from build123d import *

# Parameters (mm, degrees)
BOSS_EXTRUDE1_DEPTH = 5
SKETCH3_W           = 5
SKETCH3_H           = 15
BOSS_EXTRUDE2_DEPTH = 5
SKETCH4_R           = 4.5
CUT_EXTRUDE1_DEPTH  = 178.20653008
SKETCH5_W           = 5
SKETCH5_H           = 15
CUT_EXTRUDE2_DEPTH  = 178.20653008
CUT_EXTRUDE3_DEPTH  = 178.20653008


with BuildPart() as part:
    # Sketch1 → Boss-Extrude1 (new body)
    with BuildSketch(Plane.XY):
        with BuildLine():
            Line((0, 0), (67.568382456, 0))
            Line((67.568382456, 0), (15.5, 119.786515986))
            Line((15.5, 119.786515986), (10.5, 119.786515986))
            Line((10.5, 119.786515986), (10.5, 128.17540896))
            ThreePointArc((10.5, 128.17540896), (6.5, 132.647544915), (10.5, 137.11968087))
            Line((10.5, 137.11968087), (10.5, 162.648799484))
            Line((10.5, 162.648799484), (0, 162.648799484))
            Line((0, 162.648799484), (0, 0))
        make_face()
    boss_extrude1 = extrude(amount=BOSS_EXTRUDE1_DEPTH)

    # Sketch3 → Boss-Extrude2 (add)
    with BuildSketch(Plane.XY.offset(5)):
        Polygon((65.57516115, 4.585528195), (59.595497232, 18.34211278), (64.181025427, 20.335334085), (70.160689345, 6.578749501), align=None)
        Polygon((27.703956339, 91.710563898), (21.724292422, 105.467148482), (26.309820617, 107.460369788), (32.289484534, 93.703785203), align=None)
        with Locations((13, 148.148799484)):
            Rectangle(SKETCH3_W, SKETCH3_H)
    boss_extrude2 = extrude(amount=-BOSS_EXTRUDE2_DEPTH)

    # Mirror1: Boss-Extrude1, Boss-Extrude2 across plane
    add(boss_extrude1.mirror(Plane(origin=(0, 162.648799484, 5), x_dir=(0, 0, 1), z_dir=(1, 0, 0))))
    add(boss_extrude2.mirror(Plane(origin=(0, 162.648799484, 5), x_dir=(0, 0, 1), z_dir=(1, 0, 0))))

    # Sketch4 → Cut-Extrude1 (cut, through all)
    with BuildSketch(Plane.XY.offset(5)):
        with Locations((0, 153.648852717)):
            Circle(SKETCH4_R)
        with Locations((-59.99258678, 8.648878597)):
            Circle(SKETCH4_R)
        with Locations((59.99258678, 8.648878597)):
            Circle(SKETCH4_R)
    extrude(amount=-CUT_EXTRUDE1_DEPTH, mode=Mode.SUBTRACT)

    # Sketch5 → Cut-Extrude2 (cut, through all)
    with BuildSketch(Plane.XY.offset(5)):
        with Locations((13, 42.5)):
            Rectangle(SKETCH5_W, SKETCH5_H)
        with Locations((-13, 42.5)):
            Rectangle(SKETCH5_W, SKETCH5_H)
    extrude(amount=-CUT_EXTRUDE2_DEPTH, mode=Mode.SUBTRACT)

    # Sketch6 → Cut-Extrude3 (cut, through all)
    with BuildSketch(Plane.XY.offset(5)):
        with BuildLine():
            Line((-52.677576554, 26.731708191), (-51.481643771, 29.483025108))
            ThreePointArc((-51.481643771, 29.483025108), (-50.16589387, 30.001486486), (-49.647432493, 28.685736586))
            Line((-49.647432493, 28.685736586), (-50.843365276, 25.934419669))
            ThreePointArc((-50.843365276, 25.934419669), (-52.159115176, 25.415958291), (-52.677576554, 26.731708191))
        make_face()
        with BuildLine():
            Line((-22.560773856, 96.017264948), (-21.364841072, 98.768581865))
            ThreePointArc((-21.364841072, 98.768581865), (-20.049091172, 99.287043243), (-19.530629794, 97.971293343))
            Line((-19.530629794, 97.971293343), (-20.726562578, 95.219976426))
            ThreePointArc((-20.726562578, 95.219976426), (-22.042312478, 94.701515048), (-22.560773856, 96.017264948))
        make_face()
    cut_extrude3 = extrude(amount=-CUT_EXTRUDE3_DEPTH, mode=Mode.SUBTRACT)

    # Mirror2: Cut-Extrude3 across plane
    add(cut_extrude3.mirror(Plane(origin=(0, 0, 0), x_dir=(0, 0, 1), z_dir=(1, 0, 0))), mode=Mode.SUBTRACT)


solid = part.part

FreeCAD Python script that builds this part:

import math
import FreeCAD as App
import Part
import Sketcher
from FreeCAD import Vector
Q = App.Units.Quantity

doc = App.newDocument("Part")
body = doc.addObject("PartDesign::Body", "Body")

# Sketch on XY plane
sketch1 = body.newObject("Sketcher::SketchObject", "Sketch")
sketch1.AttachmentSupport = (doc.getObject("XY_Plane"), [""])
sketch1.MapMode = "FlatFace"
sketch1.addGeometry([
    Part.LineSegment(Vector(0, 0, 0), Vector(67.6, 0, 0)),  # 0
    Part.LineSegment(Vector(67.6, 0, 0), Vector(15.5, 119.8, 0)),  # 1
    Part.LineSegment(Vector(15.5, 119.8, 0), Vector(10.5, 119.8, 0)),  # 2
    Part.LineSegment(Vector(10.5, 119.8, 0), Vector(10.5, 128.2, 0)),  # 3
    Part.ArcOfCircle(Part.Circle(Vector(11, 132.6, 0), Vector(0, 0, 1), 4.5), math.radians(96), math.radians(264)),  # 4
    Part.LineSegment(Vector(10.5, 137.1, 0), Vector(10.5, 162.6, 0)),  # 5
    Part.LineSegment(Vector(10.5, 162.6, 0), Vector(0, 162.6, 0)),  # 6
    Part.LineSegment(Vector(0, 162.6, 0), Vector(0, 0, 0)),  # 7
], False)
sketch1.addConstraint([
    Sketcher.Constraint("Coincident", 0, 2, 1, 1),
    Sketcher.Constraint("Coincident", 1, 2, 2, 1),
    Sketcher.Constraint("Coincident", 2, 2, 3, 1),
    Sketcher.Constraint("Coincident", 3, 2, 4, 2),
    Sketcher.Constraint("Coincident", 4, 1, 5, 1),
    Sketcher.Constraint("Coincident", 5, 2, 6, 1),
    Sketcher.Constraint("Coincident", 6, 2, 7, 1),
    Sketcher.Constraint("Coincident", 7, 2, 0, 1),
    Sketcher.Constraint("Horizontal", 0),
    Sketcher.Constraint("Horizontal", 2),
    Sketcher.Constraint("Vertical", 3),
    Sketcher.Constraint("Vertical", 5),
    Sketcher.Constraint("Horizontal", 6),
    Sketcher.Constraint("Vertical", 7),
    Sketcher.Constraint("Coincident", 7, 2, -1, 1),
    Sketcher.Constraint("Vertical", 3, 2, 4, 1),
    Sketcher.Constraint("Radius", 4, Q("4.5 mm")),
    Sketcher.Constraint("DistanceX", 2, 2, 2, 1, Q("5 mm")),
    Sketcher.Constraint("DistanceX", 6, 2, 6, 1, Q("10.5 mm")),
    Sketcher.Constraint("DistanceX", -1, 1, 4, 3, Q("11 mm")),
    Sketcher.Constraint("DistanceY", 7, 2, 7, 1, Q("162.648799 mm")),
    Sketcher.Constraint("DistanceY", 5, 1, 5, 2, Q("25.529119 mm")),
    Sketcher.Constraint("Distance", 1, Q("130.613651 mm")),
    Sketcher.Constraint("DistanceX", 0, 1, 0, 2, Q("67.568382 mm")),
])
pad1 = body.newObject("PartDesign::Pad", "Pad")
pad1.Profile = sketch1
pad1.Length = 5

# Sketch on XY plane
sketch2 = body.newObject("Sketcher::SketchObject", "Sketch001")
sketch2.AttachmentSupport = (doc.getObject("XY_Plane"), [""])
sketch2.MapMode = "FlatFace"
sketch2.AttachmentOffset = App.Placement(Vector(0, 0, 5), App.Rotation())
sketch2.addGeometry([
    Part.LineSegment(Vector(59.6, 18.3, 0), Vector(65.6, 4.6, 0)),  # 0
    Part.LineSegment(Vector(65.6, 4.6, 0), Vector(70.2, 6.6, 0)),  # 1
    Part.LineSegment(Vector(70.2, 6.6, 0), Vector(64.2, 20.3, 0)),  # 2
    Part.LineSegment(Vector(64.2, 20.3, 0), Vector(59.6, 18.3, 0)),  # 3
    Part.LineSegment(Vector(21.7, 105.5, 0), Vector(27.7, 91.7, 0)),  # 4
    Part.LineSegment(Vector(27.7, 91.7, 0), Vector(32.3, 93.7, 0)),  # 5
    Part.LineSegment(Vector(32.3, 93.7, 0), Vector(26.3, 107.5, 0)),  # 6
    Part.LineSegment(Vector(26.3, 107.5, 0), Vector(21.7, 105.5, 0)),  # 7
    Part.LineSegment(Vector(10.5, 155.6, 0), Vector(10.5, 140.6, 0)),  # 8
    Part.LineSegment(Vector(10.5, 140.6, 0), Vector(15.5, 140.6, 0)),  # 9
    Part.LineSegment(Vector(15.5, 140.6, 0), Vector(15.5, 155.6, 0)),  # 10
    Part.LineSegment(Vector(15.5, 155.6, 0), Vector(10.5, 155.6, 0)),  # 11
], False)
sketch2.addConstraint([
    Sketcher.Constraint("Coincident", 0, 2, 1, 1),
    Sketcher.Constraint("Coincident", 1, 2, 2, 1),
    Sketcher.Constraint("Coincident", 2, 2, 3, 1),
    Sketcher.Constraint("Coincident", 3, 2, 0, 1),
    Sketcher.Constraint("Coincident", 4, 2, 5, 1),
    Sketcher.Constraint("Coincident", 5, 2, 6, 1),
    Sketcher.Constraint("Coincident", 6, 2, 7, 1),
    Sketcher.Constraint("Coincident", 7, 2, 4, 1),
    Sketcher.Constraint("Coincident", 8, 2, 9, 1),
    Sketcher.Constraint("Coincident", 9, 2, 10, 1),
    Sketcher.Constraint("Coincident", 10, 2, 11, 1),
    Sketcher.Constraint("Coincident", 11, 2, 8, 1),
    Sketcher.Constraint("Vertical", 8),
    Sketcher.Constraint("Horizontal", 9),
    Sketcher.Constraint("Vertical", 10),
    Sketcher.Constraint("Horizontal", 11),
    Sketcher.Constraint("Perpendicular", 0, 1),
    Sketcher.Constraint("Perpendicular", 1, 2),
    Sketcher.Constraint("Perpendicular", 2, 3),
    Sketcher.Constraint("Perpendicular", 3, 4),
    Sketcher.Constraint("Perpendicular", 4, 5),
    Sketcher.Constraint("Perpendicular", 5, 6),
    Sketcher.Constraint("Perpendicular", 6, 7),
    Sketcher.Constraint("Equal", 2, 4),
    Sketcher.Constraint("Equal", 3, 5),
    Sketcher.Constraint("DistanceX", 9, 1, 9, 2, Q("5 mm")),
    Sketcher.Constraint("DistanceY", 8, 2, 8, 1, Q("15 mm")),
    Sketcher.Constraint("Distance", 0, Q("15 mm")),
    Sketcher.Constraint("Distance", 1, Q("5 mm")),
    Sketcher.Constraint("DistanceX", -1, 1, 8, 2, Q("10.5 mm")),
    Sketcher.Constraint("DistanceY", -1, 1, 8, 2, Q("140.648799 mm")),
    Sketcher.Constraint("DistanceX", -1, 1, 0, 2, Q("65.575161 mm")),
    Sketcher.Constraint("DistanceY", -1, 1, 0, 2, Q("4.585528 mm")),
    Sketcher.Constraint("DistanceX", -1, 1, 1, 2, Q("70.160689 mm")),
    Sketcher.Constraint("DistanceX", -1, 1, 6, 2, Q("26.309821 mm")),
    Sketcher.Constraint("DistanceY", -1, 1, 6, 2, Q("107.46037 mm")),
])
pad2 = body.newObject("PartDesign::Pad", "Pad001")
pad2.Profile = sketch2
pad2.Length = 5
pad2.Reversed = True
doc.recompute()

mirrored = body.newObject("PartDesign::Mirrored", "Mirrored")
mirrored.Originals = [pad1, pad2]
mirrored.MirrorPlane = (doc.getObject("YZ_Plane"), [""])
body.Tip = mirrored

# Sketch on XY plane
sketch3 = body.newObject("Sketcher::SketchObject", "Sketch002")
sketch3.AttachmentSupport = (doc.getObject("XY_Plane"), [""])
sketch3.MapMode = "FlatFace"
sketch3.AttachmentOffset = App.Placement(Vector(0, 0, 5), App.Rotation())
sketch3.addGeometry([
    Part.Circle(Vector(0, 153.6, 0), Vector(0, 0, 1), 4.5),
    Part.Circle(Vector(-60, 8.6, 0), Vector(0, 0, 1), 4.5),
    Part.Circle(Vector(60, 8.6, 0), Vector(0, 0, 1), 4.5),
], False)
sketch3.addConstraint([
    Sketcher.Constraint("Equal", 0, 1),
    Sketcher.Constraint("Equal", 1, 2),
    Sketcher.Constraint("Symmetric", 1, 3, 2, 3, -2),
    Sketcher.Constraint("PointOnObject", 0, 3, -2),
    Sketcher.Constraint("Diameter", 0, Q("9 mm")),
    Sketcher.Constraint("DistanceY", -1, 1, 1, 3, Q("8.648879 mm")),
    Sketcher.Constraint("DistanceY", -1, 1, 0, 3, Q("153.648853 mm")),
    Sketcher.Constraint("DistanceX", 1, 3, -1, 1, Q("59.992587 mm")),
])
pocket1 = body.newObject("PartDesign::Pocket", "Pocket")
pocket1.Profile = sketch3
pocket1.Type = "ThroughAll"

# Sketch on XY plane
sketch4 = body.newObject("Sketcher::SketchObject", "Sketch003")
sketch4.AttachmentSupport = (doc.getObject("XY_Plane"), [""])
sketch4.MapMode = "FlatFace"
sketch4.AttachmentOffset = App.Placement(Vector(0, 0, 5), App.Rotation())
sketch4.addGeometry([
    Part.LineSegment(Vector(10, 50, 0), Vector(10, 35, 0)),  # 0
    Part.LineSegment(Vector(10, 35, 0), Vector(16, 35, 0)),  # 1
    Part.LineSegment(Vector(16, 35, 0), Vector(16, 50, 0)),  # 2
    Part.LineSegment(Vector(16, 50, 0), Vector(10, 50, 0)),  # 3
    Part.LineSegment(Vector(-16, 50, 0), Vector(-16, 35, 0)),  # 4
    Part.LineSegment(Vector(-16, 35, 0), Vector(-10, 35, 0)),  # 5
    Part.LineSegment(Vector(-10, 35, 0), Vector(-10, 50, 0)),  # 6
    Part.LineSegment(Vector(-10, 50, 0), Vector(-16, 50, 0)),  # 7
], False)
sketch4.addConstraint([
    Sketcher.Constraint("Coincident", 0, 2, 1, 1),
    Sketcher.Constraint("Coincident", 1, 2, 2, 1),
    Sketcher.Constraint("Coincident", 2, 2, 3, 1),
    Sketcher.Constraint("Coincident", 3, 2, 0, 1),
    Sketcher.Constraint("Coincident", 4, 2, 5, 1),
    Sketcher.Constraint("Coincident", 5, 2, 6, 1),
    Sketcher.Constraint("Coincident", 6, 2, 7, 1),
    Sketcher.Constraint("Coincident", 7, 2, 4, 1),
    Sketcher.Constraint("Vertical", 0),
    Sketcher.Constraint("Horizontal", 1),
    Sketcher.Constraint("Vertical", 2),
    Sketcher.Constraint("Horizontal", 3),
    Sketcher.Constraint("Vertical", 4),
    Sketcher.Constraint("Horizontal", 5),
    Sketcher.Constraint("Vertical", 6),
    Sketcher.Constraint("Horizontal", 7),
    Sketcher.Constraint("Symmetric", 1, 2, 4, 2, -2),
    Sketcher.Constraint("Symmetric", 3, 2, 6, 2, -2),
    Sketcher.Constraint("DistanceX", 1, 1, 1, 2, Q("5 mm")),
    Sketcher.Constraint("DistanceY", 0, 2, 0, 1, Q("15 mm")),
    Sketcher.Constraint("DistanceY", -1, 1, 0, 2, Q("35 mm")),
    Sketcher.Constraint("DistanceX", 4, 2, 0, 2, Q("26 mm")),
])
pocket2 = body.newObject("PartDesign::Pocket", "Pocket001")
pocket2.Profile = sketch4
pocket2.Type = "ThroughAll"

# Sketch on XY plane
sketch5 = body.newObject("Sketcher::SketchObject", "Sketch004")
sketch5.AttachmentSupport = (doc.getObject("XY_Plane"), [""])
sketch5.MapMode = "FlatFace"
sketch5.AttachmentOffset = App.Placement(Vector(0, 0, 5), App.Rotation())
sketch5.addGeometry([
    Part.LineSegment(Vector(-51.5, 29.5, 0), Vector(-52.7, 26.7, 0)),  # 0
    Part.ArcOfCircle(Part.Circle(Vector(-51.8, 26.3, 0), Vector(0, 0, 1), 1), math.radians(157), math.radians(337)),  # 1
    Part.LineSegment(Vector(-50.8, 25.9, 0), Vector(-49.6, 28.7, 0)),  # 2
    Part.ArcOfCircle(Part.Circle(Vector(-50.6, 29.1, 0), Vector(0, 0, 1), 1), math.radians(-23), math.radians(157)),  # 3
    Part.LineSegment(Vector(-21.4, 98.8, 0), Vector(-22.6, 96, 0)),  # 4
    Part.ArcOfCircle(Part.Circle(Vector(-21.6, 95.6, 0), Vector(0, 0, 1), 1), math.radians(157), math.radians(337)),  # 5
    Part.LineSegment(Vector(-20.7, 95.2, 0), Vector(-19.5, 98, 0)),  # 6
    Part.ArcOfCircle(Part.Circle(Vector(-20.4, 98.4, 0), Vector(0, 0, 1), 1), math.radians(-23), math.radians(157)),  # 7
], False)
sketch5.addConstraint([
    Sketcher.Constraint("Tangent", 0, 2, 1, 1),
    Sketcher.Constraint("Tangent", 1, 2, 2, 1),
    Sketcher.Constraint("Tangent", 2, 2, 3, 1),
    Sketcher.Constraint("Tangent", 3, 2, 0, 1),
    Sketcher.Constraint("Tangent", 4, 2, 5, 1),
    Sketcher.Constraint("Tangent", 5, 2, 6, 1),
    Sketcher.Constraint("Tangent", 6, 2, 7, 1),
    Sketcher.Constraint("Tangent", 7, 2, 4, 1),
    Sketcher.Constraint("Equal", 1, 3),
    Sketcher.Constraint("Equal", 3, 5),
    Sketcher.Constraint("Equal", 5, 7),
    Sketcher.Constraint("Parallel", 2, 4),
    Sketcher.Constraint("Equal", 2, 4),
    Sketcher.Constraint("Radius", 1, Q("1 mm")),
    Sketcher.Constraint("Distance", 0, Q("3 mm")),
    Sketcher.Constraint("DistanceY", 1, 2, 5, 3, Q("69.684201 mm")),
    Sketcher.Constraint("DistanceX", 1, 3, -1, 1, Q("51.760471 mm")),
    Sketcher.Constraint("DistanceX", 3, 3, -1, 1, Q("50.564538 mm")),
    Sketcher.Constraint("DistanceY", -1, 1, 3, 3, Q("29.084381 mm")),
    Sketcher.Constraint("DistanceX", 5, 3, -1, 1, Q("21.643668 mm")),
])
pocket3 = body.newObject("PartDesign::Pocket", "Pocket002")
pocket3.Profile = sketch5
pocket3.Type = "ThroughAll"
doc.recompute()

mirrored2 = body.newObject("PartDesign::Mirrored", "Mirrored001")
mirrored2.Originals = [pocket3]
mirrored2.MirrorPlane = (doc.getObject("YZ_Plane"), [""])
body.Tip = mirrored2

doc.recompute()
